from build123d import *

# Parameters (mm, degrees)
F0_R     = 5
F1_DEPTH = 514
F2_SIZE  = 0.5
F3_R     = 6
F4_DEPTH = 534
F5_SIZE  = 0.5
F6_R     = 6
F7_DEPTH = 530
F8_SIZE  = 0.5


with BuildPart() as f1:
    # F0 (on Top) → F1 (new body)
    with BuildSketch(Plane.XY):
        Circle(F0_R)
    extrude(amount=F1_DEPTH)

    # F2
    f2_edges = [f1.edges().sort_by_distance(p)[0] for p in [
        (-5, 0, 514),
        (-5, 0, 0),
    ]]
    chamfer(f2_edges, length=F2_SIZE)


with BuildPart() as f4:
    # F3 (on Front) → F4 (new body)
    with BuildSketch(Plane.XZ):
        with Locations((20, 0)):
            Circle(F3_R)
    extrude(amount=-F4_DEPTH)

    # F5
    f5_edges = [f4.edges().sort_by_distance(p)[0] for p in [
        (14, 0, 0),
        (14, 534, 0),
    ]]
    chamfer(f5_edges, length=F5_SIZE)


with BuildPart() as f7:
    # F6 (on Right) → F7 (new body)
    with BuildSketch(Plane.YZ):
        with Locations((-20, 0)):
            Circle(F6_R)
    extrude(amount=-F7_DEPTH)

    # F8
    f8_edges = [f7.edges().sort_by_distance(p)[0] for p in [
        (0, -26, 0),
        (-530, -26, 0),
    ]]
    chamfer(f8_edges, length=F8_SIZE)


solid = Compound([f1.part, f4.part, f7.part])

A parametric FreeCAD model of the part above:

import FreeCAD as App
import Part
import Sketcher

V = App.Vector
Q = App.Units.Quantity


def edges_at(feature, points):
    """Names of the edges that pass closest to the given points."""
    edges = feature.Shape.Edges
    near = lambda p: min(range(len(edges)), key=lambda i: edges[i].distToShape(Part.Vertex(*p))[0])
    return sorted({f"Edge{near(p) + 1}" for p in points})

doc = App.newDocument("Part")
params = doc.addObject("Spreadsheet::Sheet", "Params")
for row, (alias, value) in enumerate([
    ("sketch1_diameter", "10 mm"),
    ("pad1_length", "514 mm"),
    ("chamfer_size", "0.5 mm"),
    ("sketch2_diameter", "12 mm"),
    ("pad2_length", "534 mm"),
    ("chamfer2_size", "0.5 mm"),
    ("sketch3_diameter", "12 mm"),
    ("pad3_length", "530 mm"),
    ("chamfer3_size", "0.5 mm"),
], start=1):
    params.set(f"A{row}", alias)
    params.set(f"B{row}", "=" + value)
    params.setAlias(f"B{row}", alias)

body = doc.addObject("PartDesign::Body", "Body")

sketch1 = body.newObject("Sketcher::SketchObject", "Sketch")
sketch1.AttachmentSupport = (doc.getObject("XY_Plane"), [""])
sketch1.MapMode = "FlatFace"
sketch1.addGeometry(Part.Circle(V(0, 0, 0), V(0, 0, 1), 5), False)
sketch1.addConstraint([
    Sketcher.Constraint("Coincident", 0, 3, -1, 1),
    Sketcher.Constraint("Diameter", 0, Q("10 mm")),
])
sketch1.setExpression("Constraints[1]", "Params.sketch1_diameter")
pad1 = body.newObject("PartDesign::Pad", "Pad")
pad1.Profile = sketch1
pad1.setExpression("Length", "Params.pad1_length")
doc.recompute()

chamfer = body.newObject("PartDesign::Chamfer", "Chamfer")
chamfer.Base = (pad1, edges_at(pad1, [(-5, 0, 514), (-5, 0, 0)]))
chamfer.setExpression("Size", "Params.chamfer_size")
body2 = doc.addObject("PartDesign::Body", "Body001")

sketch2 = body2.newObject("Sketcher::SketchObject", "Sketch001")
sketch2.AttachmentSupport = (doc.getObject("XZ_Plane001"), [""])
sketch2.MapMode = "FlatFace"
sketch2.addGeometry(Part.Circle(V(20, 0, 0), V(0, 0, 1), 6), False)
sketch2.addConstraint([
    Sketcher.Constraint("PointOnObject", 0, 3, -1),
    Sketcher.Constraint("Diameter", 0, Q("12 mm")),
    Sketcher.Constraint("DistanceX", -1, 1, 0, 3, Q("20 mm")),
])
sketch2.setExpression("Constraints[1]", "Params.sketch2_diameter")
pad2 = body2.newObject("PartDesign::Pad", "Pad001")
pad2.Profile = sketch2
pad2.setExpression("Length", "Params.pad2_length")
pad2.Reversed = True
doc.recompute()

chamfer2 = body2.newObject("PartDesign::Chamfer", "Chamfer001")
chamfer2.Base = (pad2, edges_at(pad2, [(14, 0, 0), (14, 534, 0)]))
chamfer2.setExpression("Size", "Params.chamfer2_size")
body3 = doc.addObject("PartDesign::Body", "Body002")

sketch3 = body3.newObject("Sketcher::SketchObject", "Sketch002")
sketch3.AttachmentSupport = (doc.getObject("YZ_Plane002"), [""])
sketch3.MapMode = "FlatFace"
sketch3.addGeometry(Part.Circle(V(-20, 0, 0), V(0, 0, 1), 6), False)
sketch3.addConstraint([
    Sketcher.Constraint("PointOnObject", 0, 3, -1),
    Sketcher.Constraint("Diameter", 0, Q("12 mm")),
    Sketcher.Constraint("DistanceX", 0, 3, -1, 1, Q("20 mm")),
])
sketch3.setExpression("Constraints[1]", "Params.sketch3_diameter")
pad3 = body3.newObject("PartDesign::Pad", "Pad002")
pad3.Profile = sketch3
pad3.setExpression("Length", "Params.pad3_length")
pad3.Reversed = True
doc.recompute()

chamfer3 = body3.newObject("PartDesign::Chamfer", "Chamfer002")
chamfer3.Base = (pad3, edges_at(pad3, [(0, -26, 0), (-530, -26, 0)]))
chamfer3.setExpression("Size", "Params.chamfer3_size")

doc.recompute()
